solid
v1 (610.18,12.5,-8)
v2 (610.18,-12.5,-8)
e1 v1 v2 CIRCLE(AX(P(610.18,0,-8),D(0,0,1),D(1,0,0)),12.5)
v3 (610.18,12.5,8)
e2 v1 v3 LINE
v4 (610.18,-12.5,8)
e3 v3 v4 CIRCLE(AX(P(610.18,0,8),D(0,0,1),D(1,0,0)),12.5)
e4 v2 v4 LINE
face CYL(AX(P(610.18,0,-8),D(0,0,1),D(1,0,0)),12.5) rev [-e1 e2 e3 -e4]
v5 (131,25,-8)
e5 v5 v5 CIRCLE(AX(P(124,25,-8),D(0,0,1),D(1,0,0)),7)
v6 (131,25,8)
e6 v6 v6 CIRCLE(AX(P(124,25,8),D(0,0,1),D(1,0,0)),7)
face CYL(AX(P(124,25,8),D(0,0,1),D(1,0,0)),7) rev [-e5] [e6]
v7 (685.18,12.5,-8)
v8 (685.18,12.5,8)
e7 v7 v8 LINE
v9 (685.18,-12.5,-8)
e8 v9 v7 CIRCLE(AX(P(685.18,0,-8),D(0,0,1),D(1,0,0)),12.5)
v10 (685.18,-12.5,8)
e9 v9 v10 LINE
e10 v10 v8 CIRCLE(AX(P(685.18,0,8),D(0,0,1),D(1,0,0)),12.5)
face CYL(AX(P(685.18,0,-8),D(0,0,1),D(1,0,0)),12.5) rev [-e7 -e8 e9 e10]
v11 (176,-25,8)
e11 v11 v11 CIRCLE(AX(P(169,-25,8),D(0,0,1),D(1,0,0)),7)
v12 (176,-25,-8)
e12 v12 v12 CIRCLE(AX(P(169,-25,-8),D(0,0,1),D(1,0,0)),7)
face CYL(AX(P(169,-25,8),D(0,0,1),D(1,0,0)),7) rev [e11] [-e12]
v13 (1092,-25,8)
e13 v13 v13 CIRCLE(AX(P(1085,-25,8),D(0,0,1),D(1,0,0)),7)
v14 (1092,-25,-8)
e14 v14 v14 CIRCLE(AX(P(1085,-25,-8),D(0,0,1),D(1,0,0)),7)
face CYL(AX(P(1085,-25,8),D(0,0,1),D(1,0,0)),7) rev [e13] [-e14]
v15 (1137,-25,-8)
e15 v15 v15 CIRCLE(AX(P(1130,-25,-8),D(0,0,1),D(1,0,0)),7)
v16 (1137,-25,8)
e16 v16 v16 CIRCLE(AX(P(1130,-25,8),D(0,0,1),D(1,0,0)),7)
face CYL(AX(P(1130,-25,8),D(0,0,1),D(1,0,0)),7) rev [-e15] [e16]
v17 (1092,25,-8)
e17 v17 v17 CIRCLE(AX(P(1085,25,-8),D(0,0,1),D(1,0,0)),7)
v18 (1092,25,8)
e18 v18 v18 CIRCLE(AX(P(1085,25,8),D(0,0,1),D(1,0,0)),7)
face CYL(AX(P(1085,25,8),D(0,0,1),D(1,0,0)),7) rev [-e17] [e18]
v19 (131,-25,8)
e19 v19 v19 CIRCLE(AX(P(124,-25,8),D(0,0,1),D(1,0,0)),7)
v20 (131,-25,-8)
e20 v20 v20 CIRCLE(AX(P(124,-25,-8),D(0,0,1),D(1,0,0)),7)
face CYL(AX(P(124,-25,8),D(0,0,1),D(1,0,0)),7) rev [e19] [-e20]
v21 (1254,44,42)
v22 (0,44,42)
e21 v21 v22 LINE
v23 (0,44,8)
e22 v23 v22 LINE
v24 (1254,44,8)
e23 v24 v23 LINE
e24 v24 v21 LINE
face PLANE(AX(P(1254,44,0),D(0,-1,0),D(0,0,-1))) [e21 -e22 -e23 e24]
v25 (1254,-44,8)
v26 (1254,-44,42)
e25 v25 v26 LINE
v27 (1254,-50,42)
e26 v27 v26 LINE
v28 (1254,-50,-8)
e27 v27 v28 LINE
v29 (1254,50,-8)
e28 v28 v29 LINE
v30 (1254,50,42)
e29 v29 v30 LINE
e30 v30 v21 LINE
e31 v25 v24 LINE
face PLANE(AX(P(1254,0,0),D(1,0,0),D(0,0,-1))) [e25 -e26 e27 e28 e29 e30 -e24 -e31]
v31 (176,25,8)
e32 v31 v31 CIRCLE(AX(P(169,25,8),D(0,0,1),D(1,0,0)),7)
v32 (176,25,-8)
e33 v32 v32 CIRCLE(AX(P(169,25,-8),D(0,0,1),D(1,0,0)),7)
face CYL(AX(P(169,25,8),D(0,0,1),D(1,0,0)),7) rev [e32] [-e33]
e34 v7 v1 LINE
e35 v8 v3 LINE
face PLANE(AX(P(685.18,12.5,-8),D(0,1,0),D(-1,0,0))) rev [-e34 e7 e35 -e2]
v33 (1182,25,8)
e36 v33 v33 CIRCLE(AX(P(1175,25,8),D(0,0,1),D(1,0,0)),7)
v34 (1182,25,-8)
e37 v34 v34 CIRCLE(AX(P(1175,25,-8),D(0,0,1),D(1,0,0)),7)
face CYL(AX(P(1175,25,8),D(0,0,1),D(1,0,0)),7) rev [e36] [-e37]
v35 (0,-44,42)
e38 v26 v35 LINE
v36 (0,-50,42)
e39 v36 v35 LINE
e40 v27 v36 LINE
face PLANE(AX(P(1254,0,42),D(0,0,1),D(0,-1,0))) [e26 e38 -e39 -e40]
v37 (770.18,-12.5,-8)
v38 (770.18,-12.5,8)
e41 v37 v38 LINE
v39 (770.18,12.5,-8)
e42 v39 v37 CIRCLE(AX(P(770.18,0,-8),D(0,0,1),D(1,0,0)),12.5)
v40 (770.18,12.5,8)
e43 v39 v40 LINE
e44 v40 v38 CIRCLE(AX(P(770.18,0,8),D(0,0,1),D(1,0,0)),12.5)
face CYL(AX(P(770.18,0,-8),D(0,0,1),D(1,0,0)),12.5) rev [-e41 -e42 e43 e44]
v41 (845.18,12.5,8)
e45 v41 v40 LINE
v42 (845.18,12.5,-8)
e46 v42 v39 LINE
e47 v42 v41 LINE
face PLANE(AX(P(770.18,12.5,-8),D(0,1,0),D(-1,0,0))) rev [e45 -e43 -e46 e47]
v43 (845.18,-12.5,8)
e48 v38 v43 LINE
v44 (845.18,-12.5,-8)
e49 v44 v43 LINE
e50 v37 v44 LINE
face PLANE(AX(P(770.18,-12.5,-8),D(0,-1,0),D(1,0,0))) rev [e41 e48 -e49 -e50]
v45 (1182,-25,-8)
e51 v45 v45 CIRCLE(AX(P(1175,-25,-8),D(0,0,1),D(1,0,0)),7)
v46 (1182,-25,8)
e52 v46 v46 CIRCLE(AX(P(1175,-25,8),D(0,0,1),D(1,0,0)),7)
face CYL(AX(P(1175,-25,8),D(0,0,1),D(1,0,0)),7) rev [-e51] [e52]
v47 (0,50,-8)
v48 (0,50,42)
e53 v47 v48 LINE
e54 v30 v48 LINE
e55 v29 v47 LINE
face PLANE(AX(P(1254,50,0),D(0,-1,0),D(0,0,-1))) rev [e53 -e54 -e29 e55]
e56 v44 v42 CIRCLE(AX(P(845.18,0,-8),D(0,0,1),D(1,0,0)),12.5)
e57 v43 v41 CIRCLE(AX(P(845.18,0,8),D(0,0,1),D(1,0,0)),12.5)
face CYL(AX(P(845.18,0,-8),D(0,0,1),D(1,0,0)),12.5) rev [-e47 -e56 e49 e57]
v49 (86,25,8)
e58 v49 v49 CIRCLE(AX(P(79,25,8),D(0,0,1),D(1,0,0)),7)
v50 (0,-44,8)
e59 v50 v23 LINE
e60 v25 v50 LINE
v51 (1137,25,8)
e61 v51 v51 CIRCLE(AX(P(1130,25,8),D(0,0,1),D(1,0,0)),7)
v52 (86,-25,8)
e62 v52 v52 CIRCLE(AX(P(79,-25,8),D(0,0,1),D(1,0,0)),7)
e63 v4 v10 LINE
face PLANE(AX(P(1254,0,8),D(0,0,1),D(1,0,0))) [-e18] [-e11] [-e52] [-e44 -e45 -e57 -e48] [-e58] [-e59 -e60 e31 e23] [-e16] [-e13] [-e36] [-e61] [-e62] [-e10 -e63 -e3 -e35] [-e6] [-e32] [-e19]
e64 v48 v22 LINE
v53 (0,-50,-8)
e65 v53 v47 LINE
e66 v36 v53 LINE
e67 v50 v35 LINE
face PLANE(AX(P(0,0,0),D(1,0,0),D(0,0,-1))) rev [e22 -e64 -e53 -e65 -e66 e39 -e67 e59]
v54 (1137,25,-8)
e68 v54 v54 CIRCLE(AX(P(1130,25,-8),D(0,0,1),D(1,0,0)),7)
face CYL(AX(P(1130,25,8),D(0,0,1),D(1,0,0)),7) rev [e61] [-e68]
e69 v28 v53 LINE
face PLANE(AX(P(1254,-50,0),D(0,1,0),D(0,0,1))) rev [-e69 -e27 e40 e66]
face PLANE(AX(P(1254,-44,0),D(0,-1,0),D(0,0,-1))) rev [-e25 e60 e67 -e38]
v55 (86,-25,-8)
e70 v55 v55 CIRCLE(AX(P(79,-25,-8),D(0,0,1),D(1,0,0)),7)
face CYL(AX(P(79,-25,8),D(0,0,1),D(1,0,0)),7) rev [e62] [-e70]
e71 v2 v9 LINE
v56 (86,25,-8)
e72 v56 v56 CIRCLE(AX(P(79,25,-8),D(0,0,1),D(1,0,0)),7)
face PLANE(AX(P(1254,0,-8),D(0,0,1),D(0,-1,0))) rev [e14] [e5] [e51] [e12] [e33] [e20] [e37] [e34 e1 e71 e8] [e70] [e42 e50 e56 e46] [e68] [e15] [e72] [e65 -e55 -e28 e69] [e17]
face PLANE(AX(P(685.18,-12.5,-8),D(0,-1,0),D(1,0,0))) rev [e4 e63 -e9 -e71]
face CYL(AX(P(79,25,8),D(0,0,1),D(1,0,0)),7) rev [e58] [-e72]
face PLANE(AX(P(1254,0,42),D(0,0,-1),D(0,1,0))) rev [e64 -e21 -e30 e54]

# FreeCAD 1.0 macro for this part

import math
import FreeCAD as App
import Part
import Sketcher

V = App.Vector
Q = App.Units.Quantity


def add_polygon(sketch, points):
    """Adds a closed chain of lines whose ends are joined by coincident constraints."""
    first, n = sketch.GeometryCount, len(points)
    for a, b in zip(points, points[1:] + points[:1]):
        sketch.addGeometry(Part.LineSegment(App.Vector(*a, 0), App.Vector(*b, 0)), False)
    for i in range(n):
        sketch.addConstraint(Sketcher.Constraint("Coincident", first + i, 2, first + (i + 1) % n, 1))

doc = App.newDocument("Part")
body = doc.addObject("PartDesign::Body", "Body")

# Sketch on YZ plane
sketch1 = body.newObject("Sketcher::SketchObject", "Sketch")
sketch1.AttachmentSupport = (doc.getObject("YZ_Plane"), [""])
sketch1.MapMode = "FlatFace"
add_polygon(sketch1, [(50, 42), (44, 42), (44, 8), (-44, 8), (-44, 42), (-50, 42), (-50, -8), (50, -8)])  # lines 0-7
sketch1.addConstraint([
    Sketcher.Constraint("Horizontal", 0),
    Sketcher.Constraint("Vertical", 1),
    Sketcher.Constraint("Horizontal", 2),
    Sketcher.Constraint("Vertical", 3),
    Sketcher.Constraint("Horizontal", 4),
    Sketcher.Constraint("Vertical", 5),
    Sketcher.Constraint("Horizontal", 6),
    Sketcher.Constraint("Vertical", 7),
    Sketcher.Constraint("Symmetric", 0, 2, 3, 2, -2),
    Sketcher.Constraint("Equal", 0, 4),
    Sketcher.Constraint("DistanceX", 0, 2, 0, 1, Q("6 mm")),
    Sketcher.Constraint("DistanceX", 2, 2, 2, 1, Q("88 mm")),
    Sketcher.Constraint("DistanceY", 1, 2, 1, 1, Q("34 mm")),
    Sketcher.Constraint("DistanceY", 5, 2, 5, 1, Q("50 mm")),
    Sketcher.Constraint("DistanceY", -1, 1, 0, 2, Q("42 mm")),
])
pad1 = body.newObject("PartDesign::Pad", "Pad")
pad1.Profile = sketch1
pad1.Length = 1254

# Sketch on XY plane
sketch2 = body.newObject("Sketcher::SketchObject", "Sketch001")
sketch2.AttachmentSupport = (doc.getObject("XY_Plane"), [""])
sketch2.MapMode = "FlatFace"
sketch2.AttachmentOffset = App.Placement(V(0, 0, 8), App.Rotation())
sketch2.addGeometry([
    Part.Circle(V(1175, 25, 0), V(0, 0, 1), 7),  # 0
    Part.Circle(V(1130, 25, 0), V(0, 0, 1), 7),  # 1
    Part.Circle(V(1085, 25, 0), V(0, 0, 1), 7),  # 2
    Part.Circle(V(1085, -25, 0), V(0, 0, 1), 7),  # 3
    Part.Circle(V(1130, -25, 0), V(0, 0, 1), 7),  # 4
    Part.Circle(V(1175, -25, 0), V(0, 0, 1), 7),  # 5
    Part.Circle(V(79, 25, 0), V(0, 0, 1), 7),  # 6
    Part.Circle(V(124, 25, 0), V(0, 0, 1), 7),  # 7
    Part.Circle(V(169, 25, 0), V(0, 0, 1), 7),  # 8
    Part.Circle(V(169, -25, 0), V(0, 0, 1), 7),  # 9
    Part.Circle(V(124, -25, 0), V(0, 0, 1), 7),  # 10
    Part.Circle(V(79, -25, 0), V(0, 0, 1), 7),  # 11
], False)
sketch2.addConstraint([
    Sketcher.Constraint("Equal", 0, 1),
    Sketcher.Constraint("Equal", 1, 2),
    Sketcher.Constraint("Equal", 2, 3),
    Sketcher.Constraint("Equal", 3, 4),
    Sketcher.Constraint("Equal", 4, 5),
    Sketcher.Constraint("Equal", 5, 6),
    Sketcher.Constraint("Equal", 6, 7),
    Sketcher.Constraint("Equal", 7, 8),
    Sketcher.Constraint("Equal", 8, 9),
    Sketcher.Constraint("Equal", 9, 10),
    Sketcher.Constraint("Equal", 10, 11),
    Sketcher.Constraint("Symmetric", 2, 3, 3, 3, -1),
    Sketcher.Constraint("Symmetric", 1, 3, 4, 3, -1),
    Sketcher.Constraint("Symmetric", 0, 3, 5, 3, -1),
    Sketcher.Constraint("Symmetric", 8, 3, 9, 3, -1),
    Sketcher.Constraint("Symmetric", 7, 3, 10, 3, -1),
    Sketcher.Constraint("Symmetric", 6, 3, 11, 3, -1),
    Sketcher.Constraint("Horizontal", 0, 3, 1, 3),
    Sketcher.Constraint("Horizontal", 1, 3, 2, 3),
    Sketcher.Constraint("Horizontal", 2, 3, 6, 3),
    Sketcher.Constraint("Horizontal", 6, 3, 7, 3),
    Sketcher.Constraint("Horizontal", 7, 3, 8, 3),
    Sketcher.Constraint("Diameter", 0, Q("14 mm")),
    Sketcher.Constraint("DistanceX", -1, 1, 0, 3, Q("1175 mm")),
    Sketcher.Constraint("DistanceY", -1, 1, 0, 3, Q("25 mm")),
    Sketcher.Constraint("DistanceX", -1, 1, 1, 3, Q("1130 mm")),
    Sketcher.Constraint("DistanceX", -1, 1, 2, 3, Q("1085 mm")),
    Sketcher.Constraint("DistanceX", -1, 1, 6, 3, Q("79 mm")),
    Sketcher.Constraint("DistanceX", -1, 1, 7, 3, Q("124 mm")),
    Sketcher.Constraint("DistanceX", -1, 1, 8, 3, Q("169 mm")),
])
doc.recompute()
hole = body.newObject("PartDesign::Hole", "Hole")
hole.Profile = sketch2
hole.ThreadType = "None"
hole.Diameter = 14
hole.DepthType = "ThroughAll"

# Sketch on XY plane
sketch3 = body.newObject("Sketcher::SketchObject", "Sketch002")
sketch3.AttachmentSupport = (doc.getObject("XY_Plane"), [""])
sketch3.MapMode = "FlatFace"
sketch3.AttachmentOffset = App.Placement(V(0, 0, 8), App.Rotation())
sketch3.addGeometry([
    Part.LineSegment(V(845, 12, 0), V(770, 12, 0)),  # 0
    Part.ArcOfCircle(Part.Circle(V(770, 0, 0), V(0, 0, 1), 12), math.radians(90), math.radians(270)),  # 1
    Part.LineSegment(V(770, -12, 0), V(845, -12, 0)),  # 2
    Part.ArcOfCircle(Part.Circle(V(845, 0, 0), V(0, 0, 1), 12), math.radians(-90), math.radians(90)),  # 3
    Part.LineSegment(V(610, -12, 0), V(685, -12, 0)),  # 4
    Part.ArcOfCircle(Part.Circle(V(685, 0, 0), V(0, 0, 1), 12), math.radians(-90), math.radians(90)),  # 5
    Part.LineSegment(V(685, 12, 0), V(610, 12, 0)),  # 6
    Part.ArcOfCircle(Part.Circle(V(610, 0, 0), V(0, 0, 1), 12), math.radians(90), math.radians(270)),  # 7
], False)
sketch3.addConstraint([
    Sketcher.Constraint("Tangent", 0, 2, 1, 1),
    Sketcher.Constraint("Tangent", 1, 2, 2, 1),
    Sketcher.Constraint("Tangent", 2, 2, 3, 1),
    Sketcher.Constraint("Tangent", 3, 2, 0, 1),
    Sketcher.Constraint("Tangent", 4, 2, 5, 1),
    Sketcher.Constraint("Tangent", 5, 2, 6, 1),
    Sketcher.Constraint("Tangent", 6, 2, 7, 1),
    Sketcher.Constraint("Tangent", 7, 2, 4, 1),
    Sketcher.Constraint("Horizontal", 0),
    Sketcher.Constraint("Horizontal", 2),
    Sketcher.Constraint("Horizontal", 4),
    Sketcher.Constraint("Horizontal", 6),
    Sketcher.Constraint("Equal", 3, 5),
    Sketcher.Constraint("PointOnObject", 1, 3, -1),
    Sketcher.Constraint("PointOnObject", 5, 3, -1),
    Sketcher.Constraint("Equal", 2, 4),
    Sketcher.Constraint("Radius", 1, Q("12.5 mm")),
    Sketcher.Constraint("DistanceX", 0, 2, 0, 1, Q("75 mm")),
    Sketcher.Constraint("DistanceX", 5, 3, 1, 3, Q("85 mm")),
    Sketcher.Constraint("DistanceX", -1, 1, 1, 3, Q("770.18 mm")),
])
pocket1 = body.newObject("PartDesign::Pocket", "Pocket")
pocket1.Profile = sketch3
pocket1.Type = "ThroughAll"
pocket1.Midplane = True

doc.recompute()
